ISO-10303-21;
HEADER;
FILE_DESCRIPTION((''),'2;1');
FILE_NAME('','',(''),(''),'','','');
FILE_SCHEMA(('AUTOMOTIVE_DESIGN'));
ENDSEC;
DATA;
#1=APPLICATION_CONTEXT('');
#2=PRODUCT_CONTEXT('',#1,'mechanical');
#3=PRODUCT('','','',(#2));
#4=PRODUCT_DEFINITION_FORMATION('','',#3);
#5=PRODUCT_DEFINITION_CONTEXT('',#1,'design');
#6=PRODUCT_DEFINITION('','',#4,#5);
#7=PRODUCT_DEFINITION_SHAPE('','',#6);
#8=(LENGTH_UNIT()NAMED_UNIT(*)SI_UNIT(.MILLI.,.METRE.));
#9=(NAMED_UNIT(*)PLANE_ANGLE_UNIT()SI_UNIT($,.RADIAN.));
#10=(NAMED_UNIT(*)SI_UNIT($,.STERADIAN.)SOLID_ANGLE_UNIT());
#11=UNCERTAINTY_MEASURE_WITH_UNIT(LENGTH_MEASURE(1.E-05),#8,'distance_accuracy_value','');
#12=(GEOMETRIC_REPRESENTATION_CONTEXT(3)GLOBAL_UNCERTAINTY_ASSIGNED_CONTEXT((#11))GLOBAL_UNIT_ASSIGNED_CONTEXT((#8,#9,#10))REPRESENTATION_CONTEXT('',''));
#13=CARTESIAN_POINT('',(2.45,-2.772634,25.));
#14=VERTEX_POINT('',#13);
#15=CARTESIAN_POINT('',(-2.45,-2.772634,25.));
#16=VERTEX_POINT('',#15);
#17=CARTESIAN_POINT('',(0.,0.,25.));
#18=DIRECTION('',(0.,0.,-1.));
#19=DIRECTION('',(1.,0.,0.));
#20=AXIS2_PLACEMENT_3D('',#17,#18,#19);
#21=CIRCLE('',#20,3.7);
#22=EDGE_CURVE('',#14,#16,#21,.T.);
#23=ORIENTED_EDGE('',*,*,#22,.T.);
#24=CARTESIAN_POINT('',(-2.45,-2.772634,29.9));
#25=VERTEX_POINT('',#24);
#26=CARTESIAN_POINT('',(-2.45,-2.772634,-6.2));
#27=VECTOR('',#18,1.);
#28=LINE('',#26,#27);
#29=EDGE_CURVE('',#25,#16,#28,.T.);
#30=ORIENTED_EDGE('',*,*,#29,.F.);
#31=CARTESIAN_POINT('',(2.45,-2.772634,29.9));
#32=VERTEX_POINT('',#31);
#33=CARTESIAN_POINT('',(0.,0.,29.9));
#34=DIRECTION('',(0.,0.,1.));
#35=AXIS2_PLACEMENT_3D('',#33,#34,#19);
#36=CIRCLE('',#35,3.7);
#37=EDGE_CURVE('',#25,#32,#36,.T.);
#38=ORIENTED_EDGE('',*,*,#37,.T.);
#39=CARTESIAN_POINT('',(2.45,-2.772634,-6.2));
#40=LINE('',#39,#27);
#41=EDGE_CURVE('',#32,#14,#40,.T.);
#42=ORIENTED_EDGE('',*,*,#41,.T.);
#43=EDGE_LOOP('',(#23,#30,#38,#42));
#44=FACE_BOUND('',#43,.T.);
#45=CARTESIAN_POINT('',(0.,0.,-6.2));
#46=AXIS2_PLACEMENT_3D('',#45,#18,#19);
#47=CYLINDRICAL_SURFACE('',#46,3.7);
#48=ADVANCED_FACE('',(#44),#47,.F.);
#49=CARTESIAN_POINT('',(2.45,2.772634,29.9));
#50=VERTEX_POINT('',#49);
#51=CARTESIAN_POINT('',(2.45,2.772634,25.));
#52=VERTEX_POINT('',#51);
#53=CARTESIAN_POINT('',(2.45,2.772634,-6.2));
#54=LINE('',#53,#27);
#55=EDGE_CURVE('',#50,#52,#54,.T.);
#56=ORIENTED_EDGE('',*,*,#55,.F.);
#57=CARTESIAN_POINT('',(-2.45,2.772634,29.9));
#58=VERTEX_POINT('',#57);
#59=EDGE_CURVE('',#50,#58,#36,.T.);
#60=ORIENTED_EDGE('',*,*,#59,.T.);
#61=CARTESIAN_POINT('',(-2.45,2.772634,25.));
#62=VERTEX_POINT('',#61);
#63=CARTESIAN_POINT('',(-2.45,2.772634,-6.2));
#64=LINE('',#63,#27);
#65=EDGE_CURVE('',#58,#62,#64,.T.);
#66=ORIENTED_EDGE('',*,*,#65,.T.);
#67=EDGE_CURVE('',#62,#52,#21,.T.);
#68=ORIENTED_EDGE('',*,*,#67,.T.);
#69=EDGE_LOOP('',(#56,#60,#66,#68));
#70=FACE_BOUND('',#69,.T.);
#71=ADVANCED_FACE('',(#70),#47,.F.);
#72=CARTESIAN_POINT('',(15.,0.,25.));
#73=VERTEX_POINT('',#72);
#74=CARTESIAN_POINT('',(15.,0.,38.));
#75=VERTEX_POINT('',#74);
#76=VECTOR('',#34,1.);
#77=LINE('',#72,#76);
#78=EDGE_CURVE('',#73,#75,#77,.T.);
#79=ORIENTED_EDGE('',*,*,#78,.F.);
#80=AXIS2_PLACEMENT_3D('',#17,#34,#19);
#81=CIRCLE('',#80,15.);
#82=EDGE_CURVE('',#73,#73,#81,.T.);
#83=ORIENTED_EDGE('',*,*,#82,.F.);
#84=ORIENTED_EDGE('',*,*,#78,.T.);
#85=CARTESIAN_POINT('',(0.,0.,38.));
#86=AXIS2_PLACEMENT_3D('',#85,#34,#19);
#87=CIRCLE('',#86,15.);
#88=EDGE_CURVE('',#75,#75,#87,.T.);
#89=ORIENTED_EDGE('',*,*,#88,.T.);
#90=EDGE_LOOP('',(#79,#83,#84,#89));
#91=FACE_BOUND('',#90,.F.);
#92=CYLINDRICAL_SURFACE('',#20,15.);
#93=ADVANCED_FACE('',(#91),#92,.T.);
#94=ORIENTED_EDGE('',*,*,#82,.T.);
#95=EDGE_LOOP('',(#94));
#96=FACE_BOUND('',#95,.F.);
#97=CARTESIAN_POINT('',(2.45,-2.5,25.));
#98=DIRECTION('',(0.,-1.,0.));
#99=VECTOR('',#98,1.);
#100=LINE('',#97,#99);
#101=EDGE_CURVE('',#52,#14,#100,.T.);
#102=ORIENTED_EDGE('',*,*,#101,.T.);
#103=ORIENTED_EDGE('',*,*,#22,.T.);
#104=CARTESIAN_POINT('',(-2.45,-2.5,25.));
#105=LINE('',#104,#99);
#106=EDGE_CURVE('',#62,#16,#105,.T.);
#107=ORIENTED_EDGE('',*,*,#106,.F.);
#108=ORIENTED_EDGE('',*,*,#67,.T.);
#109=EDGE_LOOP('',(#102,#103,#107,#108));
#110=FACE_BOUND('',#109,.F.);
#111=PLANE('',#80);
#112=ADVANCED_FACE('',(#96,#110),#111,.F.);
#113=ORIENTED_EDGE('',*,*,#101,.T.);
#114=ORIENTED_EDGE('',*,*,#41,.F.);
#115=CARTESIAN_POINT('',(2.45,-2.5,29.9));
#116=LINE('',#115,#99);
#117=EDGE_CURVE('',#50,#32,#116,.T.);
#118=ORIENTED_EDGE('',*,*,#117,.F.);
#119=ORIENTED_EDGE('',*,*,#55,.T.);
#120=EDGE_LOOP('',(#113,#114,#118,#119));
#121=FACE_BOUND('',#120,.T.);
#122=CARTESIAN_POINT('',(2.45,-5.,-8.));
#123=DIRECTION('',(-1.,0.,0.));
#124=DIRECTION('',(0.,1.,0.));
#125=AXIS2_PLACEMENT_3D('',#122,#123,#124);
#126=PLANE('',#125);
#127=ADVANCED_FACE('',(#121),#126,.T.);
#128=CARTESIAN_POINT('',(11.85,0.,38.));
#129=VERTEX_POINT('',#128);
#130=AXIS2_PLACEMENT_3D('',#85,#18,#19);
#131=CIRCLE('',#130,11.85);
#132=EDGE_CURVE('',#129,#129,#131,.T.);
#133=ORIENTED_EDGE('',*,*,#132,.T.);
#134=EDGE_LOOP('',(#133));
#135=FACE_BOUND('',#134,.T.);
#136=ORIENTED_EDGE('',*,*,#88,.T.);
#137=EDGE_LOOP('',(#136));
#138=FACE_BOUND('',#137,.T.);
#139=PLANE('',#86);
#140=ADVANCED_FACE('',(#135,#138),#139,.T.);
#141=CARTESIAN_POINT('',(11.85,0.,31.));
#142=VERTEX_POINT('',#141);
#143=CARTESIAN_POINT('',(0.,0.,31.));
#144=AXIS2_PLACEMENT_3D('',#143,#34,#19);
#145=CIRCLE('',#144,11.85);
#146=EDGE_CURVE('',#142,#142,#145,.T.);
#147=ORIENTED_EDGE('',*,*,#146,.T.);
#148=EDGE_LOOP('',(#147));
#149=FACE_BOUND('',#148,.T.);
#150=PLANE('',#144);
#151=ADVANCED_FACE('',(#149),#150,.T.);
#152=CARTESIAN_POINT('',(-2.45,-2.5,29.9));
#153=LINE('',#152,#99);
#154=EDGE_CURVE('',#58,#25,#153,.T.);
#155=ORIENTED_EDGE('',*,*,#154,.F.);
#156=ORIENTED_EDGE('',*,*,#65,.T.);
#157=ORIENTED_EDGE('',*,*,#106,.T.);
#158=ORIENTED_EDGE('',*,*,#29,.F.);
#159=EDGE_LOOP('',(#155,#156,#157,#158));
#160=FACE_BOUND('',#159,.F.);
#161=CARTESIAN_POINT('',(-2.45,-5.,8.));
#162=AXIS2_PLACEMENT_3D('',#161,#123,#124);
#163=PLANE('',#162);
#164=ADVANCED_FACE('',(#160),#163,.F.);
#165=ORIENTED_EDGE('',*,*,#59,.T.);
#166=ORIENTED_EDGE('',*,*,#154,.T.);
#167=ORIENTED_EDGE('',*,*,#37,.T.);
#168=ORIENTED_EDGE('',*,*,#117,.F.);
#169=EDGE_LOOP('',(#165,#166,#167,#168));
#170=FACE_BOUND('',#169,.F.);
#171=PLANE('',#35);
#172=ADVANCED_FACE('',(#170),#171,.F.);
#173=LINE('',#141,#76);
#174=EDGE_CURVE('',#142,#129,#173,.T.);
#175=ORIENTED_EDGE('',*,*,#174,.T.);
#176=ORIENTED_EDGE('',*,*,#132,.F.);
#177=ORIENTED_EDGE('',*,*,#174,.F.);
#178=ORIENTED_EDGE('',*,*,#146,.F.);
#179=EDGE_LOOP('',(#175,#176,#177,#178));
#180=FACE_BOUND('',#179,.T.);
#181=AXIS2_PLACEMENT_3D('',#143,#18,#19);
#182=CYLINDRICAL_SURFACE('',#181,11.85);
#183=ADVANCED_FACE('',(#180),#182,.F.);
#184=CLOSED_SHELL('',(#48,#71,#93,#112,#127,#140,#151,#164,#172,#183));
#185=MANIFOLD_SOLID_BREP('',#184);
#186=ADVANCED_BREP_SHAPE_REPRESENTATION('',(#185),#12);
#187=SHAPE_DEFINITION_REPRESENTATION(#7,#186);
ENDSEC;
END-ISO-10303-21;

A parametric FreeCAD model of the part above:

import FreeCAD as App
import Part
import Sketcher
Q = App.Units.Quantity


def add_polygon(sketch, points):
    """Adds a closed chain of lines whose ends are joined by coincident constraints."""
    first, n = sketch.GeometryCount, len(points)
    for a, b in zip(points, points[1:] + points[:1]):
        sketch.addGeometry(Part.LineSegment(App.Vector(*a, 0), App.Vector(*b, 0)), False)
    for i in range(n):
        sketch.addConstraint(Sketcher.Constraint("Coincident", first + i, 2, first + (i + 1) % n, 1))

doc = App.newDocument("Part")
body = doc.addObject("PartDesign::Body", "Body")

sketch1 = body.newObject("Sketcher::SketchObject", "Sketch")
sketch1.AttachmentSupport = (doc.getObject("XY_Plane"), [""])
sketch1.MapMode = "FlatFace"
sketch1.AttachmentOffset = App.Placement(App.Vector(0, 0, 5), App.Rotation())
add_polygon(sketch1, [(-2, 5), (-2, -5), (8, -5), (8, 5)])
sketch1.addConstraint([
    Sketcher.Constraint("Vertical", 0),
    Sketcher.Constraint("Horizontal", 1),
    Sketcher.Constraint("Vertical", 2),
    Sketcher.Constraint("Horizontal", 3),
    Sketcher.Constraint("Equal", 3, 0),
    Sketcher.Constraint("DistanceX", 1, 1, 1, 2, Q("10 mm")),
    Sketcher.Constraint("DistanceY", 0, 2, -1, 1, Q("5 mm")),
    Sketcher.Constraint("DistanceX", 0, 2, -1, 1, Q("1.85 mm")),
])
pad1 = body.newObject("PartDesign::Pad", "Pad")
pad1.Profile = sketch1
pad1.Length = 40
body2 = doc.addObject("PartDesign::Body", "Body001")

sketch2 = body2.newObject("Sketcher::SketchObject", "Sketch001")
sketch2.AttachmentSupport = (doc.getObject("XY_Plane001"), [""])
sketch2.MapMode = "FlatFace"
sketch2.AttachmentOffset = App.Placement(App.Vector(0, 0, -11), App.Rotation())
add_polygon(sketch2, [(13, 5), (13, -5), (23, -5), (23, 5)])
sketch2.addConstraint([
    Sketcher.Constraint("Vertical", 0),
    Sketcher.Constraint("Horizontal", 1),
    Sketcher.Constraint("Vertical", 2),
    Sketcher.Constraint("Horizontal", 3),
    Sketcher.Constraint("Equal", 3, 0),
    Sketcher.Constraint("DistanceX", 1, 1, 1, 2, Q("10 mm")),
    Sketcher.Constraint("DistanceY", 0, 2, -1, 1, Q("5 mm")),
    Sketcher.Constraint("DistanceX", -1, 1, 0, 2, Q("13.05 mm")),
])
pad2 = body2.newObject("PartDesign::Pad", "Pad001")
pad2.Profile = sketch2
pad2.Length = 40
body3 = doc.addObject("PartDesign::Body", "Body002")

sketch3 = body3.newObject("Sketcher::SketchObject", "Sketch002")
sketch3.AttachmentSupport = (doc.getObject("XY_Plane002"), [""])
sketch3.MapMode = "FlatFace"
sketch3.AttachmentOffset = App.Placement(App.Vector(0, 0, -9.2), App.Rotation())
sketch3.addGeometry(Part.Circle(App.Vector(10.6, 0, 0), App.Vector(0, 0, 1), 3.7), False)
sketch3.addConstraint([
    Sketcher.Constraint("PointOnObject", 0, 3, -1),
    Sketcher.Constraint("Diameter", 0, Q("7.4 mm")),
    Sketcher.Constraint("DistanceX", -1, 1, 0, 3, Q("10.6 mm")),
])
pad3 = body3.newObject("PartDesign::Pad", "Pad002")
pad3.Profile = sketch3
pad3.Length = 36.1
doc.recompute()

boolean = body3.newObject("PartDesign::Boolean", "Boolean")
boolean.Type = "Cut"
boolean.addObjects([body2])
doc.recompute()

boolean2 = body3.newObject("PartDesign::Boolean", "Boolean001")
boolean2.Type = "Cut"
boolean2.addObjects([body])
body4 = doc.addObject("PartDesign::Body", "Body003")
doc.recompute()

body3.Placement = App.Placement(App.Vector(-10.6, 0, 3), App.Rotation(App.Vector(0, 0, 1), 0))
boolean3 = body4.newObject("PartDesign::Boolean", "Boolean002")
boolean3.Type = "Fuse"
boolean3.addObjects([body3])
body5 = doc.addObject("PartDesign::Body", "Body004")

sketch4 = body5.newObject("Sketcher::SketchObject", "Sketch003")
sketch4.AttachmentSupport = (doc.getObject("XY_Plane004"), [""])
sketch4.MapMode = "FlatFace"
sketch4.AttachmentOffset = App.Placement(App.Vector(0, 0, 31), App.Rotation())
sketch4.addGeometry(Part.Circle(App.Vector(0, 0, 0), App.Vector(0, 0, 1), 12), False)
sketch4.addConstraint([
    Sketcher.Constraint("Coincident", 0, 3, -1, 1),
    Sketcher.Constraint("Diameter", 0, Q("23.7 mm")),
])
pad4 = body5.newObject("PartDesign::Pad", "Pad003")
pad4.Profile = sketch4
pad4.Length = 100
body6 = doc.addObject("PartDesign::Body", "Body005")

sketch5 = body6.newObject("Sketcher::SketchObject", "Sketch004")
sketch5.AttachmentSupport = (doc.getObject("XY_Plane005"), [""])
sketch5.MapMode = "FlatFace"
sketch5.AttachmentOffset = App.Placement(App.Vector(0, 0, 25), App.Rotation())
sketch5.addGeometry(Part.Circle(App.Vector(0, 0, 0), App.Vector(0, 0, 1), 15), False)
sketch5.addConstraint([
    Sketcher.Constraint("Coincident", 0, 3, -1, 1),
    Sketcher.Constraint("Diameter", 0, Q("30 mm")),
])
pad5 = body6.newObject("PartDesign::Pad", "Pad004")
pad5.Profile = sketch5
pad5.Length = 13
doc.recompute()

boolean4 = body6.newObject("PartDesign::Boolean", "Boolean003")
boolean4.Type = "Cut"
boolean4.addObjects([body5])
doc.recompute()

boolean5 = body6.newObject("PartDesign::Boolean", "Boolean004")
boolean5.Type = "Cut"
boolean5.addObjects([body4])

doc.recompute()
